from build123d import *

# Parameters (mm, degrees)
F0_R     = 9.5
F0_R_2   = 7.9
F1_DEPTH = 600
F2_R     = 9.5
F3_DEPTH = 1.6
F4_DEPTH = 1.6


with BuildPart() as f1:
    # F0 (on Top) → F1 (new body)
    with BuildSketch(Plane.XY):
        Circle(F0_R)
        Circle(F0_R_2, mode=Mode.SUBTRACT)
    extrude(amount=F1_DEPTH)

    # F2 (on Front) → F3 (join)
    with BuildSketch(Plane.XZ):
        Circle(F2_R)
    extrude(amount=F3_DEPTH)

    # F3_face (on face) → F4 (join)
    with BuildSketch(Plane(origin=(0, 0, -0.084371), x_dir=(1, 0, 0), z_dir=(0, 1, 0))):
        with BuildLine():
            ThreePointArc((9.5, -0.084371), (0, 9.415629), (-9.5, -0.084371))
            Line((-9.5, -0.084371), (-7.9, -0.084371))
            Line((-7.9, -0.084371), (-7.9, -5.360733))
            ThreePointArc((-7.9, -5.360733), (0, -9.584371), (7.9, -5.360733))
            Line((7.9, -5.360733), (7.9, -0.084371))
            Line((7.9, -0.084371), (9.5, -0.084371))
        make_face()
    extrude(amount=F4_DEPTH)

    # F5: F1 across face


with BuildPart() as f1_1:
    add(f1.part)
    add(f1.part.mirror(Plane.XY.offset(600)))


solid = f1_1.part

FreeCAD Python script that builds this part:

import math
import FreeCAD as App
import Part
import Sketcher

V = App.Vector
Q = App.Units.Quantity

doc = App.newDocument("Part")
params = doc.addObject("Spreadsheet::Sheet", "Params")
for row, (alias, value) in enumerate([
    ("sketch1_diameter", "19 mm"),
    ("sketch1_diameter2", "15.8 mm"),
    ("pad1_length", "600 mm"),
    ("sketch2_diameter", "19 mm"),
    ("pad2_length", "1.6 mm"),
    ("sketch3_radius", "9.5 mm"),
    ("sketch3_width", "1.6 mm"),
    ("pad3_length", "1.6 mm"),
], start=1):
    params.set(f"A{row}", alias)
    params.set(f"B{row}", "=" + value)
    params.setAlias(f"B{row}", alias)

body = doc.addObject("PartDesign::Body", "Body")

sketch1 = body.newObject("Sketcher::SketchObject", "Sketch")
sketch1.AttachmentSupport = (doc.getObject("XY_Plane"), [""])
sketch1.MapMode = "FlatFace"
sketch1.addGeometry(Part.Circle(V(0, 0, 0), V(0, 0, 1), 10), False)
sketch1.addGeometry(Part.Circle(V(0, 0, 0), V(0, 0, 1), 8), False)
sketch1.addConstraint(Sketcher.Constraint("Coincident", 0, 3, -1, 1))
sketch1.addConstraint(Sketcher.Constraint("Coincident", 1, 3, -1, 1))
sketch1.addConstraint(Sketcher.Constraint("Diameter", 0, Q("19 mm")))
sketch1.addConstraint(Sketcher.Constraint("Diameter", 1, Q("15.8 mm")))
sketch1.setExpression("Constraints[2]", "Params.sketch1_diameter")
sketch1.setExpression("Constraints[3]", "Params.sketch1_diameter2")
pad1 = body.newObject("PartDesign::Pad", "Pad")
pad1.Profile = sketch1
pad1.setExpression("Length", "Params.pad1_length")

sketch2 = body.newObject("Sketcher::SketchObject", "Sketch001")
sketch2.AttachmentSupport = (doc.getObject("XZ_Plane"), [""])
sketch2.MapMode = "FlatFace"
sketch2.addGeometry(Part.Circle(V(0, 0, 0), V(0, 0, 1), 10), False)
sketch2.addConstraint(Sketcher.Constraint("Coincident", 0, 3, -1, 1))
sketch2.addConstraint(Sketcher.Constraint("Diameter", 0, Q("19 mm")))
sketch2.setExpression("Constraints[1]", "Params.sketch2_diameter")
pad2 = body.newObject("PartDesign::Pad", "Pad001")
pad2.Profile = sketch2
pad2.setExpression("Length", "Params.pad2_length")

sketch3 = body.newObject("Sketcher::SketchObject", "Sketch002")
sketch3.AttachmentSupport = (doc.getObject("XZ_Plane"), [""])
sketch3.MapMode = "FlatFace"
sketch3.addGeometry(Part.ArcOfCircle(Part.Circle(V(0, 0, 0), V(0, 0, 1), 9.5), math.radians(180), math.radians(360)), False)
sketch3.addGeometry(Part.LineSegment(V(-9.5, 0, 0), V(-7.9, 0, 0)), False)
sketch3.addGeometry(Part.LineSegment(V(-7.9, 0, 0), V(-7.9, 5.3, 0)), False)
sketch3.addGeometry(Part.ArcOfCircle(Part.Circle(V(0, 0, 0), V(0, 0, 1), 9.5), math.radians(34), math.radians(146)), False)
sketch3.addGeometry(Part.LineSegment(V(7.9, 5.3, 0), V(7.9, 0, 0)), False)
sketch3.addGeometry(Part.LineSegment(V(7.9, 0, 0), V(9.5, 0, 0)), False)
sketch3.addConstraint(Sketcher.Constraint("Coincident", 0, 1, 1, 1))
sketch3.addConstraint(Sketcher.Constraint("Coincident", 1, 2, 2, 1))
sketch3.addConstraint(Sketcher.Constraint("Coincident", 2, 2, 3, 2))
sketch3.addConstraint(Sketcher.Constraint("Coincident", 3, 1, 4, 1))
sketch3.addConstraint(Sketcher.Constraint("Coincident", 4, 2, 5, 1))
sketch3.addConstraint(Sketcher.Constraint("Coincident", 5, 2, 0, 2))
sketch3.addConstraint(Sketcher.Constraint("Horizontal", 1))
sketch3.addConstraint(Sketcher.Constraint("Vertical", 2))
sketch3.addConstraint(Sketcher.Constraint("Vertical", 4))
sketch3.addConstraint(Sketcher.Constraint("Horizontal", 5))
sketch3.addConstraint(Sketcher.Constraint("Coincident", 0, 3, -1, 1))
sketch3.addConstraint(Sketcher.Constraint("Coincident", 3, 3, -1, 1))
sketch3.addConstraint(Sketcher.Constraint("Equal", 0, 3))
sketch3.addConstraint(Sketcher.Constraint("Symmetric", 1, 2, 4, 2, -1, 1))
sketch3.addConstraint(Sketcher.Constraint("PointOnObject", 0, 1, -1))
sketch3.addConstraint(Sketcher.Constraint("Radius", 0, Q("9.5 mm")))
sketch3.addConstraint(Sketcher.Constraint("DistanceX", 1, 1, 1, 2, Q("1.6 mm")))
sketch3.setExpression("Constraints[15]", "Params.sketch3_radius")
sketch3.setExpression("Constraints[16]", "Params.sketch3_width")
pad3 = body.newObject("PartDesign::Pad", "Pad002")
pad3.Profile = sketch3
pad3.setExpression("Length", "Params.pad3_length")
pad3.Reversed = True
body2 = doc.addObject("PartDesign::Body", "Body001")
doc.recompute()

body2.BaseFeature = body
doc.recompute()

mirroring = doc.addObject("Part::Mirroring", "Mirroring")
mirroring.Source = body
mirroring.Base = V(0, 0, 600)
mirroring.Normal = V(0, 0, 1)
body3 = doc.addObject("PartDesign::Body", "Body002")
body3.BaseFeature = mirroring
boolean = body2.newObject("PartDesign::Boolean", "Boolean")
boolean.Type = "Fuse"
boolean.addObjects([body3])
doc.recompute()
mirroring.Visibility = False

doc.recompute()
